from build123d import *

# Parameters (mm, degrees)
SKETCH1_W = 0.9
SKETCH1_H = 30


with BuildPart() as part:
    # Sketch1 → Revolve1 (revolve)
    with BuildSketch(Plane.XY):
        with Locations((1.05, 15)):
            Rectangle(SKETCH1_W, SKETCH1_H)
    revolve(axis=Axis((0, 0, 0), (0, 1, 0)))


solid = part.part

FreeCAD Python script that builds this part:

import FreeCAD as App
import Part
import Sketcher
Q = App.Units.Quantity

doc = App.newDocument("Part")
body = doc.addObject("PartDesign::Body", "Body")

sketch1 = body.newObject("Sketcher::SketchObject", "Sketch")
sketch1.AttachmentSupport = (doc.getObject("XY_Plane"), [""])
sketch1.MapMode = "FlatFace"
sketch1.addGeometry([
    Part.LineSegment(App.Vector(0.6, 30, 0), App.Vector(0.6, 0, 0)),
    Part.LineSegment(App.Vector(0.6, 0, 0), App.Vector(1.5, 0, 0)),
    Part.LineSegment(App.Vector(1.5, 0, 0), App.Vector(1.5, 30, 0)),
    Part.LineSegment(App.Vector(1.5, 30, 0), App.Vector(0.6, 30, 0)),
], False)
sketch1.addConstraint([
    Sketcher.Constraint("Coincident", 0, 2, 1, 1),
    Sketcher.Constraint("Coincident", 1, 2, 2, 1),
    Sketcher.Constraint("Coincident", 2, 2, 3, 1),
    Sketcher.Constraint("Coincident", 3, 2, 0, 1),
    Sketcher.Constraint("Vertical", 0),
    Sketcher.Constraint("Horizontal", 1),
    Sketcher.Constraint("Vertical", 2),
    Sketcher.Constraint("Horizontal", 3),
    Sketcher.Constraint("PointOnObject", 0, 2, -1),
    Sketcher.Constraint("DistanceY", 0, 2, 0, 1, Q("30 mm")),
    Sketcher.Constraint("DistanceX", 1, 1, 1, 2, Q("0.9 mm")),
    Sketcher.Constraint("DistanceX", -1, 1, 0, 2, Q("0.6 mm")),
])
revolution = body.newObject("PartDesign::Revolution", "Revolution")
revolution.Profile = sketch1
revolution.ReferenceAxis = (sketch1, ["V_Axis"])
revolution.Angle = 360

doc.recompute()
